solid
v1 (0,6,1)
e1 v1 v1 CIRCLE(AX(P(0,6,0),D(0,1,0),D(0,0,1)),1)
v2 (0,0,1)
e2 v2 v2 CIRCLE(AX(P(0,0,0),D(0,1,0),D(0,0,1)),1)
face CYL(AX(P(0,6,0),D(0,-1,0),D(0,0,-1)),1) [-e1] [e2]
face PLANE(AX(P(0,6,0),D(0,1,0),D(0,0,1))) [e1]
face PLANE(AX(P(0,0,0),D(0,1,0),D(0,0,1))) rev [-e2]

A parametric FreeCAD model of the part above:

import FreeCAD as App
import Part
import Sketcher
from FreeCAD import Vector
Q = App.Units.Quantity

doc = App.newDocument("Part")
body = doc.addObject("PartDesign::Body", "Body")

sketch1 = body.newObject("Sketcher::SketchObject", "Sketch")
sketch1.AttachmentSupport = (doc.getObject("XZ_Plane"), [""])
sketch1.MapMode = "FlatFace"
sketch1.addGeometry(Part.Circle(Vector(0, 0, 0), Vector(0, 0, 1), 1), False)
sketch1.addConstraint([
    Sketcher.Constraint("Coincident", 0, 3, -1, 1),
    Sketcher.Constraint("Diameter", 0, Q("2 mm")),
])
pad1 = body.newObject("PartDesign::Pad", "Pad")
pad1.Profile = sketch1
pad1.Length = 6
pad1.Reversed = True

doc.recompute()
